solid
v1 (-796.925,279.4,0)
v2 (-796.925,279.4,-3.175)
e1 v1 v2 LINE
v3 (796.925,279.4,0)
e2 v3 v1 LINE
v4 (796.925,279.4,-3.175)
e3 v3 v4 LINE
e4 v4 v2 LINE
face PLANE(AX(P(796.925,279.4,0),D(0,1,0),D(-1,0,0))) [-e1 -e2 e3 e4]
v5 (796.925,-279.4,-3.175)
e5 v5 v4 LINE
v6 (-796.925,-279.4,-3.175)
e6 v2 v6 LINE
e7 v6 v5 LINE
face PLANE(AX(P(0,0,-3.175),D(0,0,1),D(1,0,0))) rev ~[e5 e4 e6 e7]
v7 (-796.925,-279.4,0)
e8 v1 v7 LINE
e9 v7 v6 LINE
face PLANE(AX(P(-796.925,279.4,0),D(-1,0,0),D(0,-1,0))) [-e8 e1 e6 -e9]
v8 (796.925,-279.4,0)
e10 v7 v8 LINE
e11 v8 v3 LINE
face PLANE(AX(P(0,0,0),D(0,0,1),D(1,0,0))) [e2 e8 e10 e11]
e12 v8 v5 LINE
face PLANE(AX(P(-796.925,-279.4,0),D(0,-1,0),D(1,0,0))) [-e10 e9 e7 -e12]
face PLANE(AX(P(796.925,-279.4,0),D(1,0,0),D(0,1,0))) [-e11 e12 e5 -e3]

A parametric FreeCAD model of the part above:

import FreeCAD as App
import Part
import Sketcher
from FreeCAD import Vector
Q = App.Units.Quantity

doc = App.newDocument("Part")
params = doc.addObject("Spreadsheet::Sheet", "Params")
for row, (alias, value) in enumerate([
    ("sketch1_height", "22 in"),
    ("sketch1_width", "62.75 in"),
    ("pad1_length", "0.125 in"),
], start=1):
    params.set(f"A{row}", alias)
    params.set(f"B{row}", "=" + value)
    params.setAlias(f"B{row}", alias)

body = doc.addObject("PartDesign::Body", "Body")

# Sketch on XY plane
sketch1 = body.newObject("Sketcher::SketchObject", "Sketch")
sketch1.AttachmentSupport = (doc.getObject("XY_Plane"), [""])
sketch1.MapMode = "FlatFace"
sketch1.addGeometry(Part.LineSegment(Vector(-797, 279, 0), Vector(-797, -279, 0)), False)
sketch1.addGeometry(Part.LineSegment(Vector(-797, -279, 0), Vector(797, -279, 0)), False)
sketch1.addGeometry(Part.LineSegment(Vector(797, -279, 0), Vector(797, 279, 0)), False)
sketch1.addGeometry(Part.LineSegment(Vector(797, 279, 0), Vector(-797, 279, 0)), False)
sketch1.addConstraint(Sketcher.Constraint("Coincident", 0, 2, 1, 1))
sketch1.addConstraint(Sketcher.Constraint("Coincident", 1, 2, 2, 1))
sketch1.addConstraint(Sketcher.Constraint("Coincident", 2, 2, 3, 1))
sketch1.addConstraint(Sketcher.Constraint("Coincident", 3, 2, 0, 1))
sketch1.addConstraint(Sketcher.Constraint("Vertical", 0))
sketch1.addConstraint(Sketcher.Constraint("Horizontal", 1))
sketch1.addConstraint(Sketcher.Constraint("Vertical", 2))
sketch1.addConstraint(Sketcher.Constraint("Horizontal", 3))
sketch1.addConstraint(Sketcher.Constraint("Symmetric", 0, 2, 2, 2, -1, 1))
sketch1.addConstraint(Sketcher.Constraint("DistanceY", 0, 2, 0, 1, Q("22 in")))
sketch1.addConstraint(Sketcher.Constraint("DistanceX", 1, 1, 1, 2, Q("62.75 in")))
sketch1.setExpression("Constraints[9]", "Params.sketch1_height")
sketch1.setExpression("Constraints[10]", "Params.sketch1_width")
pad1 = body.newObject("PartDesign::Pad", "Pad")
pad1.Profile = sketch1
pad1.setExpression("Length", "Params.pad1_length")
pad1.Reversed = True

doc.recompute()
